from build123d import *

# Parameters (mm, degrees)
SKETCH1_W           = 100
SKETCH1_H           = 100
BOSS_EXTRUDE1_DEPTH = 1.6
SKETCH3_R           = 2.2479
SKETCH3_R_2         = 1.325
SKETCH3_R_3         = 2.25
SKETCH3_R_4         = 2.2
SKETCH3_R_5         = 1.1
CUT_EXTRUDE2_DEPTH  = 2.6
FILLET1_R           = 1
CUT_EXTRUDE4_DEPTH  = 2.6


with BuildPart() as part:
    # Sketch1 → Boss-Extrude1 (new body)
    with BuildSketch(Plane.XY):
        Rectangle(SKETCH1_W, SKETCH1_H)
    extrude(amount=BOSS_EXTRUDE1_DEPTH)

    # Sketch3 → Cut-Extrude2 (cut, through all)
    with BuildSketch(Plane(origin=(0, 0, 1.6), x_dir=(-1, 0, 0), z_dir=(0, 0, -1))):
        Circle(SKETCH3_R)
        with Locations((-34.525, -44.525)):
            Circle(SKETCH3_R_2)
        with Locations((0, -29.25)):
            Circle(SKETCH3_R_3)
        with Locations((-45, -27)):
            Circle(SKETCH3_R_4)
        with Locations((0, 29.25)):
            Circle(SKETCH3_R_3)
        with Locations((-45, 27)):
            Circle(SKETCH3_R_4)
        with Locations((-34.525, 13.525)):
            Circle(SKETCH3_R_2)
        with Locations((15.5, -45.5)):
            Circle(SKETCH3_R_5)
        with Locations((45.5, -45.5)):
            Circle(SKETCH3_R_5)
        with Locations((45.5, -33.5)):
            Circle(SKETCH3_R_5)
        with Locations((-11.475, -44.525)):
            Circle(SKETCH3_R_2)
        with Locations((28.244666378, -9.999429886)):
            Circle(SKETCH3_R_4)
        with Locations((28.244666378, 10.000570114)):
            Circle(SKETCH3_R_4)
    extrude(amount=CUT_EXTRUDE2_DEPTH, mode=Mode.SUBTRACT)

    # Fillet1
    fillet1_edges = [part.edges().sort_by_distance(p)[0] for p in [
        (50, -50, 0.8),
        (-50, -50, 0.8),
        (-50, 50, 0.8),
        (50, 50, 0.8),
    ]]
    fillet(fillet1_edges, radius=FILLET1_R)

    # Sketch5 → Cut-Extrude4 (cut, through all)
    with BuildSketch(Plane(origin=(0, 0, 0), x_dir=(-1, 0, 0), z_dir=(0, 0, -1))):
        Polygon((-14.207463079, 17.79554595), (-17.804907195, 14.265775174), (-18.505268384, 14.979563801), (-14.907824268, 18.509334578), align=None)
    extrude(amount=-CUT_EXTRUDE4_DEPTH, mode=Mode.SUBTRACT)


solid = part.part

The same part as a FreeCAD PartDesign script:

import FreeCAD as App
import Part
import Sketcher

V = App.Vector


def edges_at(feature, points):
    """Names of the edges that pass closest to the given points."""
    edges = feature.Shape.Edges
    near = lambda p: min(range(len(edges)), key=lambda i: edges[i].distToShape(Part.Vertex(*p))[0])
    return sorted({f"Edge{near(p) + 1}" for p in points})

doc = App.newDocument("Part")
body = doc.addObject("PartDesign::Body", "Body")

sketch1 = doc.addObject("Sketcher::SketchObject", "Sketch")
body.addObject(sketch1)
sketch1.AttachmentSupport = (doc.XY_Plane, [""])
sketch1.MapMode = "FlatFace"
sketch1.addGeometry([
    Part.LineSegment(V(-50, 50, 0), V(-50, -50, 0)),
    Part.LineSegment(V(-50, -50, 0), V(50, -50, 0)),
    Part.LineSegment(V(50, -50, 0), V(50, 50, 0)),
    Part.LineSegment(V(50, 50, 0), V(-50, 50, 0)),
], False)
sketch1.addConstraint([
    Sketcher.Constraint("Coincident", 0, 2, 1, 1),
    Sketcher.Constraint("Coincident", 1, 2, 2, 1),
    Sketcher.Constraint("Coincident", 2, 2, 3, 1),
    Sketcher.Constraint("Coincident", 3, 2, 0, 1),
    Sketcher.Constraint("Vertical", 0),
    Sketcher.Constraint("Horizontal", 1),
    Sketcher.Constraint("Vertical", 2),
    Sketcher.Constraint("Horizontal", 3),
    Sketcher.Constraint("Symmetric", 0, 2, 2, 2, -1, 1),
    Sketcher.Constraint("Equal", 3, 0),
    Sketcher.Constraint("DistanceX", 1, 1, 1, 2, 100.0),
])
pad1 = doc.addObject("PartDesign::Pad", "Pad")
body.addObject(pad1)
pad1.Profile = sketch1
pad1.Length = 1.6

sketch2 = doc.addObject("Sketcher::SketchObject", "Sketch001")
body.addObject(sketch2)
sketch2.AttachmentSupport = (doc.XY_Plane, [""])
sketch2.MapMode = "FlatFace"
sketch2.AttachmentOffset = App.Placement(V(0, 0, 1.6), App.Rotation())
sketch2.addGeometry([
    Part.Circle(V(0, 0, 0), V(0, 0, 1), 2.2479),
    Part.Circle(V(34.525, -44.525, 0), V(0, 0, 1), 1.325),
    Part.Circle(V(0, -29.25, 0), V(0, 0, 1), 2.25),
    Part.Circle(V(45, -27, 0), V(0, 0, 1), 2.2),
    Part.Circle(V(0, 29.25, 0), V(0, 0, 1), 2.25),
    Part.Circle(V(45, 27, 0), V(0, 0, 1), 2.2),
    Part.Circle(V(34.525, 13.525, 0), V(0, 0, 1), 1.325),
    Part.Circle(V(-15.5, -45.5, 0), V(0, 0, 1), 1.1),
    Part.Circle(V(-45.5, -45.5, 0), V(0, 0, 1), 1.1),
    Part.Circle(V(-45.5, -33.5, 0), V(0, 0, 1), 1.1),
    Part.Circle(V(11.475, -44.525, 0), V(0, 0, 1), 1.325),
    Part.Circle(V(-28.244666, -9.99943, 0), V(0, 0, 1), 2.2),
    Part.Circle(V(-28.244666, 10.00057, 0), V(0, 0, 1), 2.2),
], False)
sketch2.addConstraint([
    Sketcher.Constraint("Coincident", 0, 3, -1, 1),
    Sketcher.Constraint("Equal", 2, 4),
    Sketcher.Constraint("Equal", 3, 5),
    Sketcher.Constraint("Equal", 1, 6),
    Sketcher.Constraint("Equal", 7, 8),
    Sketcher.Constraint("Equal", 8, 9),
    Sketcher.Constraint("Equal", 6, 10),
    Sketcher.Constraint("Equal", 5, 11),
    Sketcher.Constraint("Equal", 11, 12),
    Sketcher.Constraint("Symmetric", 2, 3, 4, 3, -1, 1),
    Sketcher.Constraint("Symmetric", 3, 3, 5, 3, -1),
    Sketcher.Constraint("PointOnObject", 2, 3, -2),
    Sketcher.Constraint("Horizontal", 7, 3, 8, 3),
    Sketcher.Constraint("Horizontal", 1, 3, 10, 3),
    Sketcher.Constraint("Vertical", 1, 3, 6, 3),
    Sketcher.Constraint("Vertical", 8, 3, 9, 3),
    Sketcher.Constraint("Vertical", 11, 3, 12, 3),
    Sketcher.Constraint("Diameter", 2, 4.5),
    Sketcher.Constraint("Diameter", 3, 4.4),
    Sketcher.Constraint("Diameter", 7, 2.2),
    Sketcher.Constraint("Diameter", 1, 2.65),
    Sketcher.Constraint("DistanceX", -1, 1, 3, 3, 45.0),
    Sketcher.Constraint("DistanceY", 3, 3, -1, 1, 27.0),
    Sketcher.Constraint("DistanceX", 8, 3, 7, 3, 30.0),
    Sketcher.Constraint("DistanceY", 8, 3, 9, 3, 12.0),
    Sketcher.Constraint("DistanceY", 11, 3, 12, 3, 20.0),
    Sketcher.Constraint("Diameter", 0, 4.4958),
    Sketcher.Constraint("DistanceX", 7, 3, -1, 1, 15.5),
    Sketcher.Constraint("DistanceY", 7, 3, -1, 1, 45.5),
    Sketcher.Constraint("DistanceY", 2, 3, 4, 3, 58.5),
    Sketcher.Constraint("DistanceX", 10, 3, 1, 3, 23.05),
    Sketcher.Constraint("DistanceX", -1, 1, 1, 3, 34.525),
    Sketcher.Constraint("DistanceY", 1, 3, -1, 1, 44.525),
    Sketcher.Constraint("DistanceY", -1, 1, 6, 3, 13.525),
    Sketcher.Constraint("DistanceY", 11, 3, -1, 1, 9.99943),
    Sketcher.Constraint("DistanceX", 11, 3, -1, 1, 28.244666),
])
pocket1 = doc.addObject("PartDesign::Pocket", "Pocket")
body.addObject(pocket1)
pocket1.Profile = sketch2
pocket1.Type = "ThroughAll"
doc.recompute()

fillet = doc.addObject("PartDesign::Fillet", "Fillet")
body.addObject(fillet)
fillet.Base = (pocket1, edges_at(pocket1, [
    (50, -50, 0.8),
    (-50, -50, 0.8),
    (-50, 50, 0.8),
    (50, 50, 0.8),
]))
fillet.Radius = 1

sketch3 = doc.addObject("Sketcher::SketchObject", "Sketch002")
body.addObject(sketch3)
sketch3.AttachmentSupport = (doc.XY_Plane, [""])
sketch3.MapMode = "FlatFace"
sketch3.addGeometry([
    Part.LineSegment(V(17.804907, 14.265775, 0), V(14.207463, 17.795546, 0)),
    Part.LineSegment(V(14.207463, 17.795546, 0), V(14.907824, 18.509335, 0)),
    Part.LineSegment(V(14.907824, 18.509335, 0), V(18.505268, 14.979564, 0)),
    Part.LineSegment(V(18.505268, 14.979564, 0), V(17.804907, 14.265775, 0)),
], False)
sketch3.addConstraint([
    Sketcher.Constraint("Coincident", 0, 2, 1, 1),
    Sketcher.Constraint("Coincident", 1, 2, 2, 1),
    Sketcher.Constraint("Coincident", 2, 2, 3, 1),
    Sketcher.Constraint("Coincident", 3, 2, 0, 1),
    Sketcher.Constraint("Perpendicular", 0, 1),
    Sketcher.Constraint("Perpendicular", 1, 2),
    Sketcher.Constraint("Perpendicular", 2, 3),
    Sketcher.Constraint("Distance", 1, 1.0),
    Sketcher.Constraint("Distance", 0, 5.039929),
    Sketcher.Constraint("DistanceX", -1, 1, 2, 2, 18.505268),
    Sketcher.Constraint("DistanceX", 0, 2, 1, 2, 0.700361),
    Sketcher.Constraint("DistanceY", -1, 1, 0, 2, 17.795546),
])
pocket2 = doc.addObject("PartDesign::Pocket", "Pocket001")
body.addObject(pocket2)
pocket2.Profile = sketch3
pocket2.Type = "ThroughAll"
pocket2.Reversed = True

doc.recompute()
